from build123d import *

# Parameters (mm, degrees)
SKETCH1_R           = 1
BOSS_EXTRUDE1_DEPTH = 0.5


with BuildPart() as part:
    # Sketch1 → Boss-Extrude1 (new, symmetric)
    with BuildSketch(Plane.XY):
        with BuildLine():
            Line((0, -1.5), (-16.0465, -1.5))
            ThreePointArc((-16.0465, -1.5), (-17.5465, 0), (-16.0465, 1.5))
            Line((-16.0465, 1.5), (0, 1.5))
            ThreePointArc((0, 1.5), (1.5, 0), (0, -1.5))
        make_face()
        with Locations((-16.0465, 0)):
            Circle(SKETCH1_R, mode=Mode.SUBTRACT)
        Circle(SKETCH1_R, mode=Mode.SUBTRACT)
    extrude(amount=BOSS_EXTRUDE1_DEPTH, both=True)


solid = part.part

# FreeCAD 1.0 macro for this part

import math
import FreeCAD as App
import Part
import Sketcher

V = App.Vector
Q = App.Units.Quantity

doc = App.newDocument("Part")
body = doc.addObject("PartDesign::Body", "Body")

sketch1 = doc.addObject("Sketcher::SketchObject", "Sketch")
body.addObject(sketch1)
sketch1.AttachmentSupport = (doc.XY_Plane, [""])
sketch1.MapMode = "FlatFace"
sketch1.addGeometry([
    Part.LineSegment(V(-16, -1.5, 0), V(0, -1.5, 0)),
    Part.ArcOfCircle(Part.Circle(V(0, 0, 0), V(0, 0, 1), 1.5), math.radians(-90), math.radians(90)),
    Part.LineSegment(V(0, 1.5, 0), V(-16, 1.5, 0)),
    Part.ArcOfCircle(Part.Circle(V(-16, 0, 0), V(0, 0, 1), 1.5), math.radians(90), math.radians(270)),
    Part.Circle(V(0, 0, 0), V(0, 0, 1), 1),
    Part.Circle(V(-16, 0, 0), V(0, 0, 1), 1),
], False)
sketch1.addConstraint([
    Sketcher.Constraint("Tangent", 0, 2, 1, 1),
    Sketcher.Constraint("Tangent", 1, 2, 2, 1),
    Sketcher.Constraint("Tangent", 2, 2, 3, 1),
    Sketcher.Constraint("Tangent", 3, 2, 0, 1),
    Sketcher.Constraint("Horizontal", 0),
    Sketcher.Constraint("Horizontal", 2),
    Sketcher.Constraint("Coincident", 1, 3, -1, 1),
    Sketcher.Constraint("Coincident", 4, 3, -1, 1),
    Sketcher.Constraint("Coincident", 5, 3, 3, 3),
    Sketcher.Constraint("Equal", 4, 5),
    Sketcher.Constraint("Diameter", 4, Q("2 mm")),
    Sketcher.Constraint("Radius", 1, Q("1.5 mm")),
    Sketcher.Constraint("DistanceX", 0, 1, 0, 2, Q("16.0465 mm")),
])
pad1 = doc.addObject("PartDesign::Pad", "Pad")
body.addObject(pad1)
pad1.Profile = sketch1
pad1.Length = 1
pad1.Midplane = True

doc.recompute()
